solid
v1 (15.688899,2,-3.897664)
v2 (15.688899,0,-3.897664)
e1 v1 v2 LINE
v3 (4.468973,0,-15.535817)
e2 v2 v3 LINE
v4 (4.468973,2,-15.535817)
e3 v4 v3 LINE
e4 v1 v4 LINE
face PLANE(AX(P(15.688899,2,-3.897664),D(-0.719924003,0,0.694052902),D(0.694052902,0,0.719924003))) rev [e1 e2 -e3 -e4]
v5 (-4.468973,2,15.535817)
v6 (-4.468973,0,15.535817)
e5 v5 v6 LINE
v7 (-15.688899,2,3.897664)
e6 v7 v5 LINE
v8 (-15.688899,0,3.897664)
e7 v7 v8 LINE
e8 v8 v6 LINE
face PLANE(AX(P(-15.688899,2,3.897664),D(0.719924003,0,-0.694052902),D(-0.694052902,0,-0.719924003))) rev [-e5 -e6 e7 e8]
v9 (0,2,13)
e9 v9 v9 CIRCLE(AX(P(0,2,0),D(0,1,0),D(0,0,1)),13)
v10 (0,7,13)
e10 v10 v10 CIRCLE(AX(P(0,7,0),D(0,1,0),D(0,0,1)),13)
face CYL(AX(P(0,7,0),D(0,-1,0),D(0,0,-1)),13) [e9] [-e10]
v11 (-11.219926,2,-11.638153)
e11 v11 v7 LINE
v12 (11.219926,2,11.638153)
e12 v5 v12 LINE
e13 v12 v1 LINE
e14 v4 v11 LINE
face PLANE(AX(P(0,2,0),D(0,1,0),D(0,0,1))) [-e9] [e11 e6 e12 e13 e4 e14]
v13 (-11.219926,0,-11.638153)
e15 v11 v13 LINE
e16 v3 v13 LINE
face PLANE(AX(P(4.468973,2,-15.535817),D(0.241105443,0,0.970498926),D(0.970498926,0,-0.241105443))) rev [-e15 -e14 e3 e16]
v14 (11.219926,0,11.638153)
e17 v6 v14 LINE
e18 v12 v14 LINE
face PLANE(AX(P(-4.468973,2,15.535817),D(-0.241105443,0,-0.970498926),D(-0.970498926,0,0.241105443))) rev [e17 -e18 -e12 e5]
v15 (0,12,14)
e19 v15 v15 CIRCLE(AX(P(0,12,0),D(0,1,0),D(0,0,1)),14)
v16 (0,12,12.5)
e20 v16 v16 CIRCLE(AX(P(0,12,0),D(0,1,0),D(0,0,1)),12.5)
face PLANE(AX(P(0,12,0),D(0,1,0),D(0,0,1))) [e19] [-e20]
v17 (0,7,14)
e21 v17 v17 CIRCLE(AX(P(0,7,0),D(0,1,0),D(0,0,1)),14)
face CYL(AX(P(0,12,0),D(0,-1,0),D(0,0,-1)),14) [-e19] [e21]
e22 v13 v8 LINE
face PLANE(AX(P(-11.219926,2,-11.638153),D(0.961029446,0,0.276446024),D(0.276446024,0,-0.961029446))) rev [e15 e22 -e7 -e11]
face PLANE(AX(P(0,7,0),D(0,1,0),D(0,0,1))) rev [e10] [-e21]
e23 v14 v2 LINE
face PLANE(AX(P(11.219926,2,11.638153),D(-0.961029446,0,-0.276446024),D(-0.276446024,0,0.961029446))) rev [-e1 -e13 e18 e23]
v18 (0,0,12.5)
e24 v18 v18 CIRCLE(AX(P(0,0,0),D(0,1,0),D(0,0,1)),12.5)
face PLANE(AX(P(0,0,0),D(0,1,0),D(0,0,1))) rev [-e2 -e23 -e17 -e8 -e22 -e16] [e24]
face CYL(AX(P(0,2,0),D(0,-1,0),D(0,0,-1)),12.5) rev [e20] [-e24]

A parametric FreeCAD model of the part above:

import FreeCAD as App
import Part
import Sketcher
from FreeCAD import Vector

doc = App.newDocument("Part")
body = doc.addObject("PartDesign::Body", "Body")

# Sketch on XZ plane
sketch1 = body.newObject("Sketcher::SketchObject", "Sketch")
sketch1.AttachmentSupport = (doc.getObject("XZ_Plane"), [""])
sketch1.MapMode = "FlatFace"
sketch1.addGeometry([
    Part.LineSegment(Vector(-4, 16, 0), Vector(11, 12, 0)),  # 0
    Part.LineSegment(Vector(11, 12, 0), Vector(16, -4, 0)),  # 1
    Part.LineSegment(Vector(16, -4, 0), Vector(4, -16, 0)),  # 2
    Part.LineSegment(Vector(4, -16, 0), Vector(-11, -12, 0)),  # 3
    Part.LineSegment(Vector(-11, -12, 0), Vector(-16, 4, 0)),  # 4
    Part.LineSegment(Vector(-16, 4, 0), Vector(-4, 16, 0)),  # 5
    Part.Circle(Vector(0, 0, 0), Vector(0, 0, 1), 12),  # 6
], False)
sketch1.addConstraint([
    Sketcher.Constraint("Coincident", 0, 2, 1, 1),
    Sketcher.Constraint("Coincident", 1, 2, 2, 1),
    Sketcher.Constraint("Coincident", 2, 2, 3, 1),
    Sketcher.Constraint("Coincident", 3, 2, 4, 1),
    Sketcher.Constraint("Coincident", 4, 2, 5, 1),
    Sketcher.Constraint("Coincident", 5, 2, 0, 1),
    Sketcher.Constraint("Coincident", 6, 3, -1, 1),
    Sketcher.Constraint("Symmetric", 0, 2, 3, 2, -1, 1),
    Sketcher.Constraint("Symmetric", 1, 2, 4, 2, -1, 1),
    Sketcher.Constraint("Symmetric", 2, 2, 5, 2, -1, 1),
    Sketcher.Constraint("Equal", 0, 1),
    Sketcher.Constraint("Equal", 1, 2),
    Sketcher.Constraint("Diameter", 6, 25.0),
    Sketcher.Constraint("DistanceX", -1, 1, 1, 2, 15.688899),
    Sketcher.Constraint("DistanceX", 3, 2, 2, 2, 15.688899),
    Sketcher.Constraint("DistanceY", 2, 2, 0, 2, 27.17397),
    Sketcher.Constraint("DistanceY", 3, 2, 1, 2, 7.740489),
])
pad1 = body.newObject("PartDesign::Pad", "Pad")
pad1.Profile = sketch1
pad1.Length = 2
pad1.Reversed = True

# Sketch on XZ plane
sketch2 = body.newObject("Sketcher::SketchObject", "Sketch001")
sketch2.AttachmentSupport = (doc.getObject("XZ_Plane"), [""])
sketch2.MapMode = "FlatFace"
sketch2.AttachmentOffset = App.Placement(Vector(0, 0, -2), App.Rotation())
sketch2.addGeometry([
    Part.Circle(Vector(0, 0, 0), Vector(0, 0, 1), 13),
    Part.Circle(Vector(0, 0, 0), Vector(0, 0, 1), 12),
], False)
sketch2.addConstraint([
    Sketcher.Constraint("Coincident", 0, 3, -1, 1),
    Sketcher.Constraint("Coincident", 1, 3, -1, 1),
    Sketcher.Constraint("Diameter", 0, 26.0),
    Sketcher.Constraint("Diameter", 1, 25.0),
])
pad2 = body.newObject("PartDesign::Pad", "Pad001")
pad2.Profile = sketch2
pad2.Length = 5
pad2.Reversed = True

# Sketch on XZ plane
sketch3 = body.newObject("Sketcher::SketchObject", "Sketch002")
sketch3.AttachmentSupport = (doc.getObject("XZ_Plane"), [""])
sketch3.MapMode = "FlatFace"
sketch3.AttachmentOffset = App.Placement(Vector(0, 0, -7), App.Rotation())
sketch3.addGeometry([
    Part.Circle(Vector(0, 0, 0), Vector(0, 0, 1), 14),
    Part.Circle(Vector(0, 0, 0), Vector(0, 0, 1), 12),
], False)
sketch3.addConstraint([
    Sketcher.Constraint("Coincident", 0, 3, -1, 1),
    Sketcher.Constraint("Coincident", 1, 3, -1, 1),
    Sketcher.Constraint("Diameter", 0, 28.0),
    Sketcher.Constraint("Diameter", 1, 25.0),
])
pad3 = body.newObject("PartDesign::Pad", "Pad002")
pad3.Profile = sketch3
pad3.Length = 5
pad3.Reversed = True

doc.recompute()
